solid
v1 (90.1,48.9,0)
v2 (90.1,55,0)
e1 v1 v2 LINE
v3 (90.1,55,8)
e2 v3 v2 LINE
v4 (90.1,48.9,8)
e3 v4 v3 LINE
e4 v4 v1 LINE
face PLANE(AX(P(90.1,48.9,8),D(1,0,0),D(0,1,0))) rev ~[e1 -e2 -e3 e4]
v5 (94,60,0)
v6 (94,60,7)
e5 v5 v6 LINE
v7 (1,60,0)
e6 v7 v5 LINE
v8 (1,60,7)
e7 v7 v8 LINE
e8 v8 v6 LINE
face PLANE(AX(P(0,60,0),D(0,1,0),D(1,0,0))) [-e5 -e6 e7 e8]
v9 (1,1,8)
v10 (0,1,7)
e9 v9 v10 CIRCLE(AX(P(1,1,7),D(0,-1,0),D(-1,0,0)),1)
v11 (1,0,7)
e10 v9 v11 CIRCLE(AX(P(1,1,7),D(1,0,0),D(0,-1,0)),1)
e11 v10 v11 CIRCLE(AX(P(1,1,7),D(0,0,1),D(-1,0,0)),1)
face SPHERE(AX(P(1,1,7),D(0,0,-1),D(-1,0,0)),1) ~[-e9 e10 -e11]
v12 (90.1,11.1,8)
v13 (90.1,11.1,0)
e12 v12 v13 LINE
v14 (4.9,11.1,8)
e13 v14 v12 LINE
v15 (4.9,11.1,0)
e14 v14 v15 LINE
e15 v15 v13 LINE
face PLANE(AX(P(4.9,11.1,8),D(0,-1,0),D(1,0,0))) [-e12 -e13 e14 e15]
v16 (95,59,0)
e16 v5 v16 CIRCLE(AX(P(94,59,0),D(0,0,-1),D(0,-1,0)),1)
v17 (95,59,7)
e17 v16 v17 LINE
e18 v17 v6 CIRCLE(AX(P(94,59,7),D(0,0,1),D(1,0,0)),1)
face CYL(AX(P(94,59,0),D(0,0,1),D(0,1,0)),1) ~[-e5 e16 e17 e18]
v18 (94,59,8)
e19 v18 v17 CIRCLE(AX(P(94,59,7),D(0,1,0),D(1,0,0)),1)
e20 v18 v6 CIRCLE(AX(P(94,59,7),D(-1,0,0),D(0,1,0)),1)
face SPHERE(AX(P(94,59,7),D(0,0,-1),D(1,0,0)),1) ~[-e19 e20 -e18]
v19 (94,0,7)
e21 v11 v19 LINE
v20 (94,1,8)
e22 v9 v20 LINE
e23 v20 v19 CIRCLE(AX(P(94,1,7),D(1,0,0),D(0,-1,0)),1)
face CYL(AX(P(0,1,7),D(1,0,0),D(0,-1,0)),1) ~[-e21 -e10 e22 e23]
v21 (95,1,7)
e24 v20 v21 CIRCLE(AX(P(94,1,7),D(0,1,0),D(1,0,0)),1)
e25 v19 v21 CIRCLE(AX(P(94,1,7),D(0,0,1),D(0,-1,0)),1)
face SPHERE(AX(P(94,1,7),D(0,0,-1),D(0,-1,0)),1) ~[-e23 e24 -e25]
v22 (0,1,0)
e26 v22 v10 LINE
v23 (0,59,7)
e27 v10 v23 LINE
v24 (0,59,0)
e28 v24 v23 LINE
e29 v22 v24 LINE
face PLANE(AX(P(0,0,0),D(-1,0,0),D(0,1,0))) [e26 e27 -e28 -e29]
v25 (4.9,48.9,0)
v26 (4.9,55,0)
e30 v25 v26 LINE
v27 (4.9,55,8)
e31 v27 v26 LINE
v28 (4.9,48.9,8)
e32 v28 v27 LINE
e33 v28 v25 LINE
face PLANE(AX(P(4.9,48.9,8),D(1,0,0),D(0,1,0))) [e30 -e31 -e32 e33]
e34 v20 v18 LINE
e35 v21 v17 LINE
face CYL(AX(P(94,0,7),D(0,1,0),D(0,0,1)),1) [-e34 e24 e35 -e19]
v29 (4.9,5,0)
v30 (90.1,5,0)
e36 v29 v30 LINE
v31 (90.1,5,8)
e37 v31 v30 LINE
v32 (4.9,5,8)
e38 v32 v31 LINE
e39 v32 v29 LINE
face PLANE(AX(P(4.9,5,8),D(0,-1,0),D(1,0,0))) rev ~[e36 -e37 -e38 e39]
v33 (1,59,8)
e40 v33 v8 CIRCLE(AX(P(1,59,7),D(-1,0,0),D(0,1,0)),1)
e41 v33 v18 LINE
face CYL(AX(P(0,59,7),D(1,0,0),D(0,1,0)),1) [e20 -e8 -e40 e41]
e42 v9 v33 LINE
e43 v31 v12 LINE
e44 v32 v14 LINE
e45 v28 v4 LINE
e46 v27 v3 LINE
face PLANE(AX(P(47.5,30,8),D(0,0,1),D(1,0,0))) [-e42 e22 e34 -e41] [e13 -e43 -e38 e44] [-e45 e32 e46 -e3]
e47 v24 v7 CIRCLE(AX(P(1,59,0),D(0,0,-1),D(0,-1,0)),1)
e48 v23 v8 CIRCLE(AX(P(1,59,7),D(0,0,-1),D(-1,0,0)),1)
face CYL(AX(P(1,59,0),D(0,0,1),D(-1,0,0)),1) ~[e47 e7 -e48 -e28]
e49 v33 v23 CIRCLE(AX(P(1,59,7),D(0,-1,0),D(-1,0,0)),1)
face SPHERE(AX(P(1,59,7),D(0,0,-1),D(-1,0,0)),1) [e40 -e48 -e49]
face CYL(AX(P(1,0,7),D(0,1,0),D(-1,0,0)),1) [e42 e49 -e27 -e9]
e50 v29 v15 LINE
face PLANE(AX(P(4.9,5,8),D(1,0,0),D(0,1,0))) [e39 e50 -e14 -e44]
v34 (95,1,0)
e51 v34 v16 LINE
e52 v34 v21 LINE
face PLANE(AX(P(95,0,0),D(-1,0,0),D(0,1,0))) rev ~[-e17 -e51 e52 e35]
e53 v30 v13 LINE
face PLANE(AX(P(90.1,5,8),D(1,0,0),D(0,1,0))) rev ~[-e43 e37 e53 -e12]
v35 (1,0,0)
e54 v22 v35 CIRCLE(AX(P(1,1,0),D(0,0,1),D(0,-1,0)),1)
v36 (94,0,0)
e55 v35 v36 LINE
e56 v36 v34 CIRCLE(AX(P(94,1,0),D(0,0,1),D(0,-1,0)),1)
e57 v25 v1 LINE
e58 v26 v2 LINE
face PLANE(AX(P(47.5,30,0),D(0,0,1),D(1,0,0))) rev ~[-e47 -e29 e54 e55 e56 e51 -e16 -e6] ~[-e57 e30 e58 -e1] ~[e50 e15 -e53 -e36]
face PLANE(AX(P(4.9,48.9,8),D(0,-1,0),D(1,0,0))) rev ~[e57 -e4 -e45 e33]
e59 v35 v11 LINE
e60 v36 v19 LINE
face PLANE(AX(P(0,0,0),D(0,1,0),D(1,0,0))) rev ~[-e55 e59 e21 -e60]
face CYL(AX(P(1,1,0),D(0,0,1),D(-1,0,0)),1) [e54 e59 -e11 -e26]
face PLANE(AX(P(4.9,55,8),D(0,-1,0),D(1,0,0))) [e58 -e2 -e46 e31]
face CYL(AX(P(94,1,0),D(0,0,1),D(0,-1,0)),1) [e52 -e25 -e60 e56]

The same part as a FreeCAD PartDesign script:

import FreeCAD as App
import Part
import Sketcher
from FreeCAD import Vector
Q = App.Units.Quantity


def edges_at(feature, points):
    """Names of the edges that pass closest to the given points."""
    edges = feature.Shape.Edges
    near = lambda p: min(range(len(edges)), key=lambda i: edges[i].distToShape(Part.Vertex(*p))[0])
    return sorted({f"Edge{near(p) + 1}" for p in points})


def add_polygon(sketch, points):
    """Adds a closed chain of lines whose ends are joined by coincident constraints."""
    first, n = sketch.GeometryCount, len(points)
    for a, b in zip(points, points[1:] + points[:1]):
        sketch.addGeometry(Part.LineSegment(App.Vector(*a, 0), App.Vector(*b, 0)), False)
    for i in range(n):
        sketch.addConstraint(Sketcher.Constraint("Coincident", first + i, 2, first + (i + 1) % n, 1))

doc = App.newDocument("Part")
params = doc.addObject("Spreadsheet::Sheet", "Params")
for row, (alias, value) in enumerate([
    ("sketch1_width", "95 mm"),
    ("sketch1_height", "60 mm"),
    ("pad1_length", "8 mm"),
    ("sketch2_width", "85.2 mm"),
    ("sketch2_height", "6.1 mm"),
    ("pocket1_length", "25 mm"),
    ("fillet_radius", "1 mm"),
], start=1):
    params.set(f"A{row}", alias)
    params.set(f"B{row}", "=" + value)
    params.setAlias(f"B{row}", alias)

body = doc.addObject("PartDesign::Body", "Body")

# Sketch on XY plane
sketch1 = body.newObject("Sketcher::SketchObject", "Sketch")
sketch1.AttachmentSupport = (doc.getObject("XY_Plane"), [""])
sketch1.MapMode = "FlatFace"
add_polygon(sketch1, [(0, 60), (0, 0), (95, 0), (95, 60)])  # lines 0-3
sketch1.addConstraint([
    Sketcher.Constraint("Vertical", 0),
    Sketcher.Constraint("Horizontal", 1),
    Sketcher.Constraint("Vertical", 2),
    Sketcher.Constraint("Horizontal", 3),
    Sketcher.Constraint("Coincident", 0, 2, -1, 1),
    Sketcher.Constraint("DistanceX", 1, 1, 1, 2, Q("95 mm")),
    Sketcher.Constraint("DistanceY", 0, 2, 0, 1, Q("60 mm")),
])
sketch1.setExpression("Constraints[9]", "Params.sketch1_width")
sketch1.setExpression("Constraints[10]", "Params.sketch1_height")
pad1 = body.newObject("PartDesign::Pad", "Pad")
pad1.Profile = sketch1
pad1.setExpression("Length", "Params.pad1_length")

# Sketch on XY plane
sketch2 = body.newObject("Sketcher::SketchObject", "Sketch001")
sketch2.AttachmentSupport = (doc.getObject("XY_Plane"), [""])
sketch2.MapMode = "FlatFace"
sketch2.AttachmentOffset = App.Placement(Vector(0, 0, 8), App.Rotation())
add_polygon(sketch2, [(5, 55), (5, 49), (90, 49), (90, 55)])  # lines 0-3
add_polygon(sketch2, [(5, 11), (5, 5), (90, 5), (90, 11)])  # lines 4-7
sketch2.addConstraint([
    Sketcher.Constraint("Vertical", 0),
    Sketcher.Constraint("Horizontal", 1),
    Sketcher.Constraint("Vertical", 2),
    Sketcher.Constraint("Horizontal", 3),
    Sketcher.Constraint("Vertical", 4),
    Sketcher.Constraint("Horizontal", 5),
    Sketcher.Constraint("Vertical", 6),
    Sketcher.Constraint("Horizontal", 7),
    Sketcher.Constraint("Vertical", 3, 2, 4, 2),
    Sketcher.Constraint("Vertical", 2, 2, 5, 2),
    Sketcher.Constraint("Equal", 2, 4),
    Sketcher.Constraint("DistanceX", 1, 1, 1, 2, Q("85.2 mm")),
    Sketcher.Constraint("DistanceY", 0, 2, 0, 1, Q("6.1 mm")),
    Sketcher.Constraint("DistanceY", -1, 1, 2, 2, Q("55 mm")),
    Sketcher.Constraint("DistanceY", -1, 1, 4, 2, Q("5 mm")),
    Sketcher.Constraint("DistanceX", -1, 1, 0, 2, Q("4.9 mm")),
])
sketch2.setExpression("Constraints[19]", "Params.sketch2_width")
sketch2.setExpression("Constraints[20]", "Params.sketch2_height")
pocket1 = body.newObject("PartDesign::Pocket", "Pocket")
pocket1.Profile = sketch2
pocket1.setExpression("Length", "Params.pocket1_length")
doc.recompute()

fillet = body.newObject("PartDesign::Fillet", "Fillet")
fillet.Base = (pocket1, edges_at(pocket1, [
    (0, 60, 4),
    (0, 0, 4),
    (95, 0, 4),
    (95, 60, 4),
    (0, 30, 8),
    (47.5, 0, 8),
    (95, 30, 8),
    (47.5, 60, 8),
]))
fillet.setExpression("Radius", "Params.fillet_radius")

doc.recompute()
